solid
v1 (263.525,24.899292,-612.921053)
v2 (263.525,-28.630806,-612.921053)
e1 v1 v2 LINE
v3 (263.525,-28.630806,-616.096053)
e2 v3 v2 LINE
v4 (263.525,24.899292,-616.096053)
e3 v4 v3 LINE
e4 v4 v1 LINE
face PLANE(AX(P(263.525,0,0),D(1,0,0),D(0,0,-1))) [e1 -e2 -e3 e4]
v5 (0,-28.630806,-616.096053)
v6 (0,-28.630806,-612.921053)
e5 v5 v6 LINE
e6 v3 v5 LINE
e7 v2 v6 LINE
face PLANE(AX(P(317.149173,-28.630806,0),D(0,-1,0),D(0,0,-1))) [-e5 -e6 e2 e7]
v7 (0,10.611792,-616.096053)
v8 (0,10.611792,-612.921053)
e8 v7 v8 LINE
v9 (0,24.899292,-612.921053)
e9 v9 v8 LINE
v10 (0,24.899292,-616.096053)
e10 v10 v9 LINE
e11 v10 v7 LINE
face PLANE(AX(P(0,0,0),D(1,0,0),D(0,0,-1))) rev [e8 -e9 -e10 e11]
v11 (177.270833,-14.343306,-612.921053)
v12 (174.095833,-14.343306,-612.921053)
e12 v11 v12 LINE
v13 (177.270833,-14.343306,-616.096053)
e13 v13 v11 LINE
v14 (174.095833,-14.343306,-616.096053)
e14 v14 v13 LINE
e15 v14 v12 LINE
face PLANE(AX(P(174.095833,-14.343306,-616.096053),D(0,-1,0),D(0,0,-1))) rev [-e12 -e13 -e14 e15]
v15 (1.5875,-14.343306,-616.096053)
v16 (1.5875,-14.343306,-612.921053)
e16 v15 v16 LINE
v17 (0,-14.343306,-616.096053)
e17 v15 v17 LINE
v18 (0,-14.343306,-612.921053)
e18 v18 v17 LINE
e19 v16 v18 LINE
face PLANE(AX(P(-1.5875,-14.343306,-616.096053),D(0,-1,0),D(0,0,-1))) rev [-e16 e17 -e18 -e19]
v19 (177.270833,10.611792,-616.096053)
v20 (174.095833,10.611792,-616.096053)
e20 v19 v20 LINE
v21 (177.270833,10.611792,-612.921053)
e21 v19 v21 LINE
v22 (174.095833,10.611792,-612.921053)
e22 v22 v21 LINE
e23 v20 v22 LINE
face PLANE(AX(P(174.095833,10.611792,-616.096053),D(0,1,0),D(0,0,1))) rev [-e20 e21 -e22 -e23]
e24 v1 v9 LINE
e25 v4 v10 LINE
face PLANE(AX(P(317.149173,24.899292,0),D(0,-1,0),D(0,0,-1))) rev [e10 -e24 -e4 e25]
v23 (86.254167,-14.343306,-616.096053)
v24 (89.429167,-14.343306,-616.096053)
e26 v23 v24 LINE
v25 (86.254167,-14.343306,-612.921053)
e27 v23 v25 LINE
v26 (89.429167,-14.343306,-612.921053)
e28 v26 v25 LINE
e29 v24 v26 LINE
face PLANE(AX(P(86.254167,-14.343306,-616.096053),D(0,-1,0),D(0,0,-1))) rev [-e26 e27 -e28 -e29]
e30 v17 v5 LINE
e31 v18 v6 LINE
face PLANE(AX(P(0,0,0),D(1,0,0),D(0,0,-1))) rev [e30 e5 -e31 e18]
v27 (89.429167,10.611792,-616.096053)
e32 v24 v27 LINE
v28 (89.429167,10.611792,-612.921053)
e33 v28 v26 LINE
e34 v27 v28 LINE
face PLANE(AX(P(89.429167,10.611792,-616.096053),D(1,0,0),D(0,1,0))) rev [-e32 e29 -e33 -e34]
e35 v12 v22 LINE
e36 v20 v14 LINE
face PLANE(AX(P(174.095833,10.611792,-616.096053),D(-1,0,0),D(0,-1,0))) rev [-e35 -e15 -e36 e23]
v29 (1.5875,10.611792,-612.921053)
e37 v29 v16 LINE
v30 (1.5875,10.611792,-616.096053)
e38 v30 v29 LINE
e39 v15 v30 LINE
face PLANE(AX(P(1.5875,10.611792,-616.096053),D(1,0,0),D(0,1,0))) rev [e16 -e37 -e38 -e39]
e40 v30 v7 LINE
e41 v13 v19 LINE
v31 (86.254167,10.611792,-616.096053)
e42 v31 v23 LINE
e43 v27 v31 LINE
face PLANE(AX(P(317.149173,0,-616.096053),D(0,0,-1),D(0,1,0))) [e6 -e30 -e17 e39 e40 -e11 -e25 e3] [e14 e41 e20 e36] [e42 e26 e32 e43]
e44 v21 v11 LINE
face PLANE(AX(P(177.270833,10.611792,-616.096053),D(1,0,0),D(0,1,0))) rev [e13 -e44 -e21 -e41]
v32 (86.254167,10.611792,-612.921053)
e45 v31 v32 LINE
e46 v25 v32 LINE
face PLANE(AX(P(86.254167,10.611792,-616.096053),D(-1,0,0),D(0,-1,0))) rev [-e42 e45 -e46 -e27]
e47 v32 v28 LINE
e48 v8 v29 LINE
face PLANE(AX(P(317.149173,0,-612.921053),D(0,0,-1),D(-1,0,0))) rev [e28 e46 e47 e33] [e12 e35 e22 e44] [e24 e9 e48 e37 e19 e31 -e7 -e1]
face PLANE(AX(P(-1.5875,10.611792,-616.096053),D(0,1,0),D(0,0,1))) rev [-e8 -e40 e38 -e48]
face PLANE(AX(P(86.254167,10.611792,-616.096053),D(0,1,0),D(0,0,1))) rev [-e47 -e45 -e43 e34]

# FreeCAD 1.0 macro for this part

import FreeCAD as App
import Part
import Sketcher
from FreeCAD import Vector
Q = App.Units.Quantity


def add_polygon(sketch, points):
    """Adds a closed chain of lines whose ends are joined by coincident constraints."""
    first, n = sketch.GeometryCount, len(points)
    for a, b in zip(points, points[1:] + points[:1]):
        sketch.addGeometry(Part.LineSegment(App.Vector(*a, 0), App.Vector(*b, 0)), False)
    for i in range(n):
        sketch.addConstraint(Sketcher.Constraint("Coincident", first + i, 2, first + (i + 1) % n, 1))

doc = App.newDocument("Part")
body = doc.addObject("PartDesign::Body", "Body")

# Sketch on YZ plane
sketch1 = body.newObject("Sketcher::SketchObject", "Sketch")
sketch1.AttachmentSupport = (doc.getObject("YZ_Plane"), [""])
sketch1.MapMode = "FlatFace"
add_polygon(sketch1, [(24.9, -612.9), (-28.6, -612.9), (-28.6, -616.1), (24.9, -616.1)])  # lines 0-3
sketch1.addConstraint([
    Sketcher.Constraint("Horizontal", 0),
    Sketcher.Constraint("Vertical", 1),
    Sketcher.Constraint("Horizontal", 2),
    Sketcher.Constraint("Vertical", 3),
    Sketcher.Constraint("DistanceY", 1, 2, 1, 1, Q("0.125 in")),
    Sketcher.Constraint("DistanceX", 0, 2, 0, 1, Q("53.530097 mm")),
    Sketcher.Constraint("DistanceX", -1, 1, 2, 2, Q("24.899292 mm")),
    Sketcher.Constraint("DistanceY", 0, 2, -1, 1, Q("612.921053 mm")),
])
pad1 = body.newObject("PartDesign::Pad", "Pad")
pad1.Profile = sketch1
pad1.Length = Q("10.375 in")

# Sketch on XY plane
sketch2 = body.newObject("Sketcher::SketchObject", "Sketch001")
sketch2.AttachmentSupport = (doc.getObject("XY_Plane"), [""])
sketch2.MapMode = "FlatFace"
sketch2.AttachmentOffset = App.Placement(Vector(0, 0, -612.921053), App.Rotation())
add_polygon(sketch2, [(-1.6, 10.6), (-1.6, -14.3), (1.6, -14.3), (1.6, 10.6)])  # lines 0-3
sketch2.addConstraint([
    Sketcher.Constraint("Vertical", 0),
    Sketcher.Constraint("Horizontal", 1),
    Sketcher.Constraint("Vertical", 2),
    Sketcher.Constraint("Horizontal", 3),
    Sketcher.Constraint("DistanceX", 1, 1, 1, 2, Q("0.125 in")),
    Sketcher.Constraint("DistanceX", 0, 2, -1, 1, Q("0.0625 in")),
    Sketcher.Constraint("DistanceY", 0, 2, 0, 1, Q("24.955097 mm")),
    Sketcher.Constraint("DistanceY", -1, 1, 2, 2, Q("10.611792 mm")),
])
pocket1 = body.newObject("PartDesign::Pocket", "Pocket")
pocket1.Profile = sketch2
pocket1.Length = 532.189511
pocket1.Midplane = True
doc.recompute()

linearpattern = body.newObject("PartDesign::LinearPattern", "LinearPattern")
linearpattern.Originals = [pocket1]
linearpattern.Direction = (doc.getObject("X_Axis"), [""])
linearpattern.Mode = "offset"
linearpattern.Offset = 87.841667
linearpattern.Occurrences = 3
body.Tip = linearpattern

doc.recompute()
